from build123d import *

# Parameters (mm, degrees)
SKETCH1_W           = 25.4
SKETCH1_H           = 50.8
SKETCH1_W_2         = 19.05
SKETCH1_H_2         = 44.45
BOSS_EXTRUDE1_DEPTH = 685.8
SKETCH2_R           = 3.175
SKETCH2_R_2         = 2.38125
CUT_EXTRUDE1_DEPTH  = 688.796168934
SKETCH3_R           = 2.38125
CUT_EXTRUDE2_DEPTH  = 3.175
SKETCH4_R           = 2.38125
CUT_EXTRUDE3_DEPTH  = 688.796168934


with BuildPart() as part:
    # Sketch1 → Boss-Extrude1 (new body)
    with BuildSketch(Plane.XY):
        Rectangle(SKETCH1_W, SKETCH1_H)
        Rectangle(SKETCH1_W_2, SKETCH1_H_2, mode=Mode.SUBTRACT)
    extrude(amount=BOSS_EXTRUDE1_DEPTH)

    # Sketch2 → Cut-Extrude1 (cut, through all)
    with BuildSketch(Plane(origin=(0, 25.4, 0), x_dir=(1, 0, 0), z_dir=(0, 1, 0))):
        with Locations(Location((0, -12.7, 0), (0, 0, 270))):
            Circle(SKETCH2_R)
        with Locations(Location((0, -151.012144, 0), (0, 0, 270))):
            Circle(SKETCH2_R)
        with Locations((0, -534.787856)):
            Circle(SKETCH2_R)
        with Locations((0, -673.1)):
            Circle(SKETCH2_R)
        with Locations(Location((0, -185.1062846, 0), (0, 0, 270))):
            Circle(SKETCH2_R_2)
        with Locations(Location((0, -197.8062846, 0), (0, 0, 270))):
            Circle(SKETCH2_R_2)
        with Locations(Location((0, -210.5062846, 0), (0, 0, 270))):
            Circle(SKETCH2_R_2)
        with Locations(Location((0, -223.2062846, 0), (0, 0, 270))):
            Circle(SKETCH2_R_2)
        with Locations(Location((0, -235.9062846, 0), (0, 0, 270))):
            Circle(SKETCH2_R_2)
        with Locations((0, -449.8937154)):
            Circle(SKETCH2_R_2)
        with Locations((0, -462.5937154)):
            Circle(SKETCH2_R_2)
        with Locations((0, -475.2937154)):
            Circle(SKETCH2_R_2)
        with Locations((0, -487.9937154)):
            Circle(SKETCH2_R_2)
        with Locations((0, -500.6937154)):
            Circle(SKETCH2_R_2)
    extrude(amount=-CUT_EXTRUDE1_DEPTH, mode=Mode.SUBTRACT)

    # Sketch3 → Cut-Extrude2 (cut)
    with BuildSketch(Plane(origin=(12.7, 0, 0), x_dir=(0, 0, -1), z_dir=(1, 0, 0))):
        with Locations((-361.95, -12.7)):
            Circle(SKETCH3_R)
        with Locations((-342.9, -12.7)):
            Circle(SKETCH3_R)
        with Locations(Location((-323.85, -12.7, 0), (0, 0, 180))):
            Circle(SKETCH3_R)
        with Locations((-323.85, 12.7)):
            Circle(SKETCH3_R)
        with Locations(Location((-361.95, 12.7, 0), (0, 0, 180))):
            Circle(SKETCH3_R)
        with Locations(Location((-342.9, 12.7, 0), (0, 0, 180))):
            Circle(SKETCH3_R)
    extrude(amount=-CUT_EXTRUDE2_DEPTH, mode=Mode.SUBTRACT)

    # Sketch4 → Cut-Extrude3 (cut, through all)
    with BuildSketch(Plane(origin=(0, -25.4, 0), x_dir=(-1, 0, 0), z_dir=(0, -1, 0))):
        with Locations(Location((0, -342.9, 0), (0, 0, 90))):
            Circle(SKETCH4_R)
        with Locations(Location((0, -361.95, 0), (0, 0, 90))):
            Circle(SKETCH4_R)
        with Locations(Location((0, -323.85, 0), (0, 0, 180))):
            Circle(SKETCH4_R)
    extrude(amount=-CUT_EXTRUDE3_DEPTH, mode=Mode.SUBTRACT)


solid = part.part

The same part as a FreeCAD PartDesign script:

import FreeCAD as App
import Part
import Sketcher
from FreeCAD import Vector
Q = App.Units.Quantity


def add_polygon(sketch, points):
    """Adds a closed chain of lines whose ends are joined by coincident constraints."""
    first, n = sketch.GeometryCount, len(points)
    for a, b in zip(points, points[1:] + points[:1]):
        sketch.addGeometry(Part.LineSegment(App.Vector(*a, 0), App.Vector(*b, 0)), False)
    for i in range(n):
        sketch.addConstraint(Sketcher.Constraint("Coincident", first + i, 2, first + (i + 1) % n, 1))

doc = App.newDocument("Part")
body = doc.addObject("PartDesign::Body", "Body")

# Sketch on XY plane
sketch1 = body.newObject("Sketcher::SketchObject", "Sketch")
sketch1.AttachmentSupport = (doc.getObject("XY_Plane"), [""])
sketch1.MapMode = "FlatFace"
add_polygon(sketch1, [(-12.7, 25.4), (-12.7, -25.4), (12.7, -25.4), (12.7, 25.4)])  # lines 0-3
add_polygon(sketch1, [(9.525, -22.225), (-9.525, -22.225), (-9.525, 22.225), (9.525, 22.225)])  # lines 4-7
sketch1.addConstraint([
    Sketcher.Constraint("Vertical", 0),
    Sketcher.Constraint("Horizontal", 1),
    Sketcher.Constraint("Vertical", 2),
    Sketcher.Constraint("Horizontal", 3),
    Sketcher.Constraint("Horizontal", 4),
    Sketcher.Constraint("Vertical", 5),
    Sketcher.Constraint("Horizontal", 6),
    Sketcher.Constraint("Vertical", 7),
    Sketcher.Constraint("Symmetric", 0, 2, 2, 2, -1, 1),
    Sketcher.Constraint("Symmetric", 4, 2, 6, 2, -1, 1),
    Sketcher.Constraint("DistanceX", 1, 1, 1, 2, Q("1 in")),
    Sketcher.Constraint("DistanceY", 0, 2, 0, 1, Q("2 in")),
    Sketcher.Constraint("DistanceX", 4, 2, 4, 1, Q("0.75 in")),
    Sketcher.Constraint("DistanceY", 5, 1, 5, 2, Q("1.75 in")),
])
pad1 = body.newObject("PartDesign::Pad", "Pad")
pad1.Profile = sketch1
pad1.Length = Q("27 in")

# Sketch on XZ plane
sketch2 = body.newObject("Sketcher::SketchObject", "Sketch001")
sketch2.AttachmentSupport = (doc.getObject("XZ_Plane"), [""])
sketch2.MapMode = "FlatFace"
sketch2.AttachmentOffset = App.Placement(Vector(0, 0, -1 * 25.4), App.Rotation())
sketch2.addGeometry([
    Part.Circle(Vector(0, 12.7, 0), Vector(0, 0, 1), 3.175),  # 0
    Part.Circle(Vector(0, 151.012144, 0), Vector(0, 0, 1), 3.175),  # 1
    Part.Circle(Vector(0, 534.787856, 0), Vector(0, 0, 1), 3.175),  # 2
    Part.Circle(Vector(0, 673.1, 0), Vector(0, 0, 1), 3.175),  # 3
    Part.Circle(Vector(0, 185.106285, 0), Vector(0, 0, 1), 2.38125),  # 4
    Part.Circle(Vector(0, 197.806285, 0), Vector(0, 0, 1), 2.38125),  # 5
    Part.Circle(Vector(0, 210.506285, 0), Vector(0, 0, 1), 2.38125),  # 6
    Part.Circle(Vector(0, 223.206285, 0), Vector(0, 0, 1), 2.38125),  # 7
    Part.Circle(Vector(0, 235.906285, 0), Vector(0, 0, 1), 2.38125),  # 8
    Part.Circle(Vector(0, 449.893715, 0), Vector(0, 0, 1), 2.38125),  # 9
    Part.Circle(Vector(0, 462.593715, 0), Vector(0, 0, 1), 2.38125),  # 10
    Part.Circle(Vector(0, 475.293715, 0), Vector(0, 0, 1), 2.38125),  # 11
    Part.Circle(Vector(0, 487.993715, 0), Vector(0, 0, 1), 2.38125),  # 12
    Part.Circle(Vector(0, 500.693715, 0), Vector(0, 0, 1), 2.38125),  # 13
], False)
sketch2.addConstraint([
    Sketcher.Constraint("Equal", 0, 1),
    Sketcher.Constraint("Equal", 1, 2),
    Sketcher.Constraint("Equal", 2, 3),
    Sketcher.Constraint("Equal", 4, 5),
    Sketcher.Constraint("Equal", 5, 6),
    Sketcher.Constraint("Equal", 6, 7),
    Sketcher.Constraint("Equal", 7, 8),
    Sketcher.Constraint("Equal", 8, 9),
    Sketcher.Constraint("Equal", 9, 10),
    Sketcher.Constraint("Equal", 10, 11),
    Sketcher.Constraint("Equal", 11, 12),
    Sketcher.Constraint("Equal", 12, 13),
    Sketcher.Constraint("PointOnObject", 0, 3, -2),
    Sketcher.Constraint("PointOnObject", 1, 3, -2),
    Sketcher.Constraint("PointOnObject", 2, 3, -2),
    Sketcher.Constraint("PointOnObject", 3, 3, -2),
    Sketcher.Constraint("PointOnObject", 4, 3, -2),
    Sketcher.Constraint("PointOnObject", 5, 3, -2),
    Sketcher.Constraint("PointOnObject", 6, 3, -2),
    Sketcher.Constraint("PointOnObject", 7, 3, -2),
    Sketcher.Constraint("PointOnObject", 8, 3, -2),
    Sketcher.Constraint("PointOnObject", 9, 3, -2),
    Sketcher.Constraint("PointOnObject", 10, 3, -2),
    Sketcher.Constraint("PointOnObject", 11, 3, -2),
    Sketcher.Constraint("PointOnObject", 12, 3, -2),
    Sketcher.Constraint("PointOnObject", 13, 3, -2),
    Sketcher.Constraint("Diameter", 0, Q("0.25 in")),
    Sketcher.Constraint("Diameter", 4, Q("0.1875 in")),
    Sketcher.Constraint("DistanceY", 0, 3, 3, 3, Q("26 in")),
    Sketcher.Constraint("DistanceY", 4, 3, 6, 3, Q("1 in")),
    Sketcher.Constraint("DistanceY", 5, 3, 7, 3, Q("1 in")),
    Sketcher.Constraint("DistanceY", 6, 3, 8, 3, Q("1 in")),
    Sketcher.Constraint("DistanceY", 9, 3, 11, 3, Q("1 in")),
    Sketcher.Constraint("DistanceY", 10, 3, 12, 3, Q("1 in")),
    Sketcher.Constraint("DistanceY", 11, 3, 13, 3, Q("1 in")),
    Sketcher.Constraint("DistanceY", -1, 1, 0, 3, Q("0.5 in")),
    Sketcher.Constraint("DistanceY", 4, 3, 5, 3, Q("0.5 in")),
    Sketcher.Constraint("DistanceY", 9, 3, 10, 3, Q("0.5 in")),
    Sketcher.Constraint("DistanceY", 1, 3, 2, 3, Q("383.775712 mm")),
    Sketcher.Constraint("DistanceY", 1, 3, 4, 3, Q("34.094141 mm")),
    Sketcher.Constraint("DistanceY", 9, 3, 2, 3, Q("84.894141 mm")),
    Sketcher.Constraint("DistanceY", -1, 1, 1, 3, Q("151.012144 mm")),
])
pocket1 = body.newObject("PartDesign::Pocket", "Pocket")
pocket1.Profile = sketch2
pocket1.Type = "ThroughAll"
pocket1.Reversed = True

# Sketch on YZ plane
sketch3 = body.newObject("Sketcher::SketchObject", "Sketch002")
sketch3.AttachmentSupport = (doc.getObject("YZ_Plane"), [""])
sketch3.MapMode = "FlatFace"
sketch3.AttachmentOffset = App.Placement(Vector(0, 0, 0.5 * 25.4), App.Rotation())
sketch3.addGeometry([
    Part.Circle(Vector(-12.7, 361.95, 0), Vector(0, 0, 1), 2.38125),  # 0
    Part.Circle(Vector(-12.7, 342.9, 0), Vector(0, 0, 1), 2.38125),  # 1
    Part.Circle(Vector(-12.7, 323.85, 0), Vector(0, 0, 1), 2.38125),  # 2
    Part.Circle(Vector(12.7, 323.85, 0), Vector(0, 0, 1), 2.38125),  # 3
    Part.Circle(Vector(12.7, 361.95, 0), Vector(0, 0, 1), 2.38125),  # 4
    Part.Circle(Vector(12.7, 342.9, 0), Vector(0, 0, 1), 2.38125),  # 5
], False)
sketch3.addConstraint([
    Sketcher.Constraint("Equal", 0, 1),
    Sketcher.Constraint("Equal", 1, 2),
    Sketcher.Constraint("Equal", 2, 3),
    Sketcher.Constraint("Equal", 3, 4),
    Sketcher.Constraint("Equal", 4, 5),
    Sketcher.Constraint("Symmetric", 2, 3, 3, 3, -2),
    Sketcher.Constraint("Symmetric", 0, 3, 4, 3, -2),
    Sketcher.Constraint("Symmetric", 1, 3, 5, 3, -2),
    Sketcher.Constraint("Vertical", 0, 3, 1, 3),
    Sketcher.Constraint("Vertical", 1, 3, 2, 3),
    Sketcher.Constraint("Diameter", 0, Q("0.1875 in")),
    Sketcher.Constraint("DistanceX", 2, 3, 3, 3, Q("1 in")),
    Sketcher.Constraint("DistanceY", -1, 1, 1, 3, Q("13.5 in")),
    Sketcher.Constraint("DistanceY", 2, 3, 0, 3, Q("1.5 in")),
    Sketcher.Constraint("DistanceY", -1, 1, 0, 3, Q("14.25 in")),
])
pocket2 = body.newObject("PartDesign::Pocket", "Pocket001")
pocket2.Profile = sketch3
pocket2.Length = Q("0.125 in")

# Sketch on XZ plane
sketch4 = body.newObject("Sketcher::SketchObject", "Sketch003")
sketch4.AttachmentSupport = (doc.getObject("XZ_Plane"), [""])
sketch4.MapMode = "FlatFace"
sketch4.AttachmentOffset = App.Placement(Vector(0, 0, 1 * 25.4), App.Rotation())
sketch4.addGeometry([
    Part.Circle(Vector(0, 342.9, 0), Vector(0, 0, 1), 2.38125),
    Part.Circle(Vector(0, 361.95, 0), Vector(0, 0, 1), 2.38125),
    Part.Circle(Vector(0, 323.85, 0), Vector(0, 0, 1), 2.38125),
], False)
sketch4.addConstraint([
    Sketcher.Constraint("Equal", 0, 1),
    Sketcher.Constraint("Equal", 1, 2),
    Sketcher.Constraint("PointOnObject", 0, 3, -2),
    Sketcher.Constraint("PointOnObject", 1, 3, -2),
    Sketcher.Constraint("PointOnObject", 2, 3, -2),
    Sketcher.Constraint("Diameter", 0, Q("0.1875 in")),
    Sketcher.Constraint("DistanceY", -1, 1, 0, 3, Q("13.5 in")),
    Sketcher.Constraint("DistanceY", 2, 3, 1, 3, Q("1.5 in")),
    Sketcher.Constraint("DistanceY", -1, 1, 1, 3, Q("14.25 in")),
])
pocket3 = body.newObject("PartDesign::Pocket", "Pocket002")
pocket3.Profile = sketch4
pocket3.Type = "ThroughAll"

doc.recompute()
